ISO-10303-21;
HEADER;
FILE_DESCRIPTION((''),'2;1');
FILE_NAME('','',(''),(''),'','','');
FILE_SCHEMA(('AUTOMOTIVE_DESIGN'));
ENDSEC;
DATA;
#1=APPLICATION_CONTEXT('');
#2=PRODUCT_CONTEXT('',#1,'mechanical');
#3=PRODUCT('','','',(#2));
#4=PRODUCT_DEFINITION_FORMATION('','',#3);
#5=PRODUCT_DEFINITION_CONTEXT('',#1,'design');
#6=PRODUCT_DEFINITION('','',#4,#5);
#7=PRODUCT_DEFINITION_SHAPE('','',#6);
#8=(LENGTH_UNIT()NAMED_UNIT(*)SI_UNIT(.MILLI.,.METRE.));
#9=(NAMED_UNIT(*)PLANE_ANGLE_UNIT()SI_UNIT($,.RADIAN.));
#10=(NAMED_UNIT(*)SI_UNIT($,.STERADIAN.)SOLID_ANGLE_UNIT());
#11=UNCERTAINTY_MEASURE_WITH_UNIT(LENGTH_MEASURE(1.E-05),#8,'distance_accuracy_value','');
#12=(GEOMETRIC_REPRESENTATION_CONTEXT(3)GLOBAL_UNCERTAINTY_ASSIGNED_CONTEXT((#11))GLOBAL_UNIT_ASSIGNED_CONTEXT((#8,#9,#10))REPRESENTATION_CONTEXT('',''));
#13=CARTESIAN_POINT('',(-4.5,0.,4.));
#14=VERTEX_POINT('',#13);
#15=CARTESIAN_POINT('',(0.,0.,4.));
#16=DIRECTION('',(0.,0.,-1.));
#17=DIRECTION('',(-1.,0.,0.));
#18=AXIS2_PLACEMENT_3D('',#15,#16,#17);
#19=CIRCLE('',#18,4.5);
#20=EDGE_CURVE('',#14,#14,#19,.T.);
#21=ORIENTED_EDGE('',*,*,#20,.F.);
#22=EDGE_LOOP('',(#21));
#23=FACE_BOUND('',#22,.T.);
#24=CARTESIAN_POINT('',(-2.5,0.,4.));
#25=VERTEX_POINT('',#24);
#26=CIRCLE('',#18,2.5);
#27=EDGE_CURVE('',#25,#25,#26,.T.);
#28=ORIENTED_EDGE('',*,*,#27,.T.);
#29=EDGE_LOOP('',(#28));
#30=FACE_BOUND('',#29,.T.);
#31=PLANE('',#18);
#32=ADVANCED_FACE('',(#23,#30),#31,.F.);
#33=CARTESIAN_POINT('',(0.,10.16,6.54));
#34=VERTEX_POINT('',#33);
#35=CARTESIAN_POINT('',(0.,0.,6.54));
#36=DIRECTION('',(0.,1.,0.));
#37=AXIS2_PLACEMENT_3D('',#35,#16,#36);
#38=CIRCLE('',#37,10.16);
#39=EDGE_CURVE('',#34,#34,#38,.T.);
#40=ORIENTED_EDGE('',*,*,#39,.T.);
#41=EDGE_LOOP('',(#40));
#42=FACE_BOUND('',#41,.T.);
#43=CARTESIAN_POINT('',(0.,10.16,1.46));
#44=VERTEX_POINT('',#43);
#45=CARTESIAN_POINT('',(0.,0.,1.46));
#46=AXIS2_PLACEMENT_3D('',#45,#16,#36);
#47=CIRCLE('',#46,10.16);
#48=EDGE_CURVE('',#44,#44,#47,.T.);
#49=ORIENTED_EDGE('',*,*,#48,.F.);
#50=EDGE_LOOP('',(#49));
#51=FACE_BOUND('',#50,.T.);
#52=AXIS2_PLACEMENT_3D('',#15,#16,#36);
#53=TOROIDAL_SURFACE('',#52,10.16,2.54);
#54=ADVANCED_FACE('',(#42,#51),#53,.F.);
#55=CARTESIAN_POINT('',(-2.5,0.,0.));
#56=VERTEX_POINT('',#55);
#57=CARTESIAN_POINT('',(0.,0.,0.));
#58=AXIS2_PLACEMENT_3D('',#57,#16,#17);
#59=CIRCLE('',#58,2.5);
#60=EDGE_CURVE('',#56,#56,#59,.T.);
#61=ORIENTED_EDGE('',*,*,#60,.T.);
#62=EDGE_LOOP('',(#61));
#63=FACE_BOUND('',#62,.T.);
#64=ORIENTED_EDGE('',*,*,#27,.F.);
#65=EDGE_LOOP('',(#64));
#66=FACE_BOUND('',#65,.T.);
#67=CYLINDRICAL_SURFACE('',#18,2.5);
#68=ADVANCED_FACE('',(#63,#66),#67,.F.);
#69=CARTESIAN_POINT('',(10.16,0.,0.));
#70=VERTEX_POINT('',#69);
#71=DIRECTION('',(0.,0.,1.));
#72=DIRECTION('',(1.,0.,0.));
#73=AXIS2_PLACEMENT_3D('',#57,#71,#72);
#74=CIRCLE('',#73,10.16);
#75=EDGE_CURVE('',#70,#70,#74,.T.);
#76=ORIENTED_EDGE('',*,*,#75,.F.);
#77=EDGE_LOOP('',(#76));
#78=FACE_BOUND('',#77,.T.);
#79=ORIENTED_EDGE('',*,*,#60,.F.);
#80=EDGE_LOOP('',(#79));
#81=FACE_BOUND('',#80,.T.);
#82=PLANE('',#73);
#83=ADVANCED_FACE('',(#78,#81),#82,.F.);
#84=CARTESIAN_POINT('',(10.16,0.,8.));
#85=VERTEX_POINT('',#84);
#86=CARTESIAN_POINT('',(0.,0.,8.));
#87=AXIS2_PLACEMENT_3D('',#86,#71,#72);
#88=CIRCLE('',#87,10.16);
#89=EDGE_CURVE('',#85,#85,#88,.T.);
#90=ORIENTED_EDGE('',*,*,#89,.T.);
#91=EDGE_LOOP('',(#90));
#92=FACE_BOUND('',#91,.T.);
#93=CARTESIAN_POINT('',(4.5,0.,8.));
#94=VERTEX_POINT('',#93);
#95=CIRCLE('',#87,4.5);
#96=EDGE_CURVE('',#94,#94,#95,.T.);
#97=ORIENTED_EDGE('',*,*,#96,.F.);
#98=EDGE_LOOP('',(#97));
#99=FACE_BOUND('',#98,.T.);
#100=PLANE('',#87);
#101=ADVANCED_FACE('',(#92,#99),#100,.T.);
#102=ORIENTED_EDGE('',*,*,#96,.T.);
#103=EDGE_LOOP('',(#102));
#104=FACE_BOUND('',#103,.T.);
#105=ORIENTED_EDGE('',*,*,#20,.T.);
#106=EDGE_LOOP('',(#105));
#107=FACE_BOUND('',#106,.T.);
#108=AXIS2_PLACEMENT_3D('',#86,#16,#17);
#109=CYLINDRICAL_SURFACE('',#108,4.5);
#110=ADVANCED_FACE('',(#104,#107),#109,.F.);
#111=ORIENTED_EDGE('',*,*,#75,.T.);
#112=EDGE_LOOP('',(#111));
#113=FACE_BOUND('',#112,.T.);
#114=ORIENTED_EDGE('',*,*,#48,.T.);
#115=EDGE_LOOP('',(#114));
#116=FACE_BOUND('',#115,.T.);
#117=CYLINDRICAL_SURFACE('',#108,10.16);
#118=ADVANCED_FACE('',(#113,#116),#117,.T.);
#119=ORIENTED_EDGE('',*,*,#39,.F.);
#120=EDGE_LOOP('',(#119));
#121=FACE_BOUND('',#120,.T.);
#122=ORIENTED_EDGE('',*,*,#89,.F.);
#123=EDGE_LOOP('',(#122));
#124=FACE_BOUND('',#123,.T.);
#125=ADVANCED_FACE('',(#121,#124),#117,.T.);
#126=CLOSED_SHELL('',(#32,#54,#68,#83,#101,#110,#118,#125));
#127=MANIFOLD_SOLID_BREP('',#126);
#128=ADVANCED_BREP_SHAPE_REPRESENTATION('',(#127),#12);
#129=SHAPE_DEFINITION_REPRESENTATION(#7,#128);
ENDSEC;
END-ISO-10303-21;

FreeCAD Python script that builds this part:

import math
import FreeCAD as App
import Part
import Sketcher

V = App.Vector

doc = App.newDocument("Part")
body = doc.addObject("PartDesign::Body", "Body")

sketch1 = doc.addObject("Sketcher::SketchObject", "Sketch")
body.addObject(sketch1)
sketch1.AttachmentSupport = (doc.XY_Plane, [""])
sketch1.MapMode = "FlatFace"
sketch1.addGeometry([
    Part.Circle(V(0, 0, 0), V(0, 0, 1), 10.2),
    Part.Circle(V(0, 0, 0), V(0, 0, 1), 4.5),
], False)
sketch1.addConstraint([
    Sketcher.Constraint("Coincident", 0, 3, -1, 1),
    Sketcher.Constraint("Coincident", 1, 3, -1, 1),
    Sketcher.Constraint("Diameter", 1, 9.0),
    Sketcher.Constraint("Diameter", 0, 20.32),
])
pad1 = doc.addObject("PartDesign::Pad", "Pad")
body.addObject(pad1)
pad1.Profile = sketch1
pad1.Length = 8

sketch2 = doc.addObject("Sketcher::SketchObject", "Sketch001")
body.addObject(sketch2)
sketch2.AttachmentSupport = (doc.YZ_Plane, [""])
sketch2.MapMode = "FlatFace"
sketch2.addGeometry([
    Part.LineSegment(V(10.2, 1.5, 0), V(10.2, 6.5, 0)),
    Part.ArcOfCircle(Part.Circle(V(10.2, 4, 0), V(0, 0, 1), 2.5), math.radians(90), math.radians(270)),
], False)
sketch2.addConstraint([
    Sketcher.Constraint("Coincident", 0, 1, 1, 2),
    Sketcher.Constraint("Coincident", 1, 1, 0, 2),
    Sketcher.Constraint("Vertical", 0),
    Sketcher.Constraint("Vertical", 1, 3, 0, 1),
    Sketcher.Constraint("Radius", 1, 2.54),
    Sketcher.Constraint("DistanceY", -1, 1, 1, 3, 4.0),
    Sketcher.Constraint("DistanceX", -1, 1, 1, 3, 10.16),
])
groove = doc.addObject("PartDesign::Groove", "Groove")
body.addObject(groove)
groove.Profile = sketch2
groove.ReferenceAxis = (sketch2, ["V_Axis"])
groove.Angle = 360

sketch3 = doc.addObject("Sketcher::SketchObject", "Sketch002")
body.addObject(sketch3)
sketch3.AttachmentSupport = (doc.XY_Plane, [""])
sketch3.MapMode = "FlatFace"
sketch3.addGeometry([
    Part.Circle(V(0, 0, 0), V(0, 0, 1), 4.5),
    Part.Circle(V(0, 0, 0), V(0, 0, 1), 2.5),
], False)
sketch3.addConstraint([
    Sketcher.Constraint("Coincident", 0, 3, -1, 1),
    Sketcher.Constraint("Coincident", 1, 3, -1, 1),
    Sketcher.Constraint("Diameter", 0, 9.0),
    Sketcher.Constraint("Diameter", 1, 5.0),
])
pad2 = doc.addObject("PartDesign::Pad", "Pad001")
body.addObject(pad2)
pad2.Profile = sketch3
pad2.Length = 4

doc.recompute()
